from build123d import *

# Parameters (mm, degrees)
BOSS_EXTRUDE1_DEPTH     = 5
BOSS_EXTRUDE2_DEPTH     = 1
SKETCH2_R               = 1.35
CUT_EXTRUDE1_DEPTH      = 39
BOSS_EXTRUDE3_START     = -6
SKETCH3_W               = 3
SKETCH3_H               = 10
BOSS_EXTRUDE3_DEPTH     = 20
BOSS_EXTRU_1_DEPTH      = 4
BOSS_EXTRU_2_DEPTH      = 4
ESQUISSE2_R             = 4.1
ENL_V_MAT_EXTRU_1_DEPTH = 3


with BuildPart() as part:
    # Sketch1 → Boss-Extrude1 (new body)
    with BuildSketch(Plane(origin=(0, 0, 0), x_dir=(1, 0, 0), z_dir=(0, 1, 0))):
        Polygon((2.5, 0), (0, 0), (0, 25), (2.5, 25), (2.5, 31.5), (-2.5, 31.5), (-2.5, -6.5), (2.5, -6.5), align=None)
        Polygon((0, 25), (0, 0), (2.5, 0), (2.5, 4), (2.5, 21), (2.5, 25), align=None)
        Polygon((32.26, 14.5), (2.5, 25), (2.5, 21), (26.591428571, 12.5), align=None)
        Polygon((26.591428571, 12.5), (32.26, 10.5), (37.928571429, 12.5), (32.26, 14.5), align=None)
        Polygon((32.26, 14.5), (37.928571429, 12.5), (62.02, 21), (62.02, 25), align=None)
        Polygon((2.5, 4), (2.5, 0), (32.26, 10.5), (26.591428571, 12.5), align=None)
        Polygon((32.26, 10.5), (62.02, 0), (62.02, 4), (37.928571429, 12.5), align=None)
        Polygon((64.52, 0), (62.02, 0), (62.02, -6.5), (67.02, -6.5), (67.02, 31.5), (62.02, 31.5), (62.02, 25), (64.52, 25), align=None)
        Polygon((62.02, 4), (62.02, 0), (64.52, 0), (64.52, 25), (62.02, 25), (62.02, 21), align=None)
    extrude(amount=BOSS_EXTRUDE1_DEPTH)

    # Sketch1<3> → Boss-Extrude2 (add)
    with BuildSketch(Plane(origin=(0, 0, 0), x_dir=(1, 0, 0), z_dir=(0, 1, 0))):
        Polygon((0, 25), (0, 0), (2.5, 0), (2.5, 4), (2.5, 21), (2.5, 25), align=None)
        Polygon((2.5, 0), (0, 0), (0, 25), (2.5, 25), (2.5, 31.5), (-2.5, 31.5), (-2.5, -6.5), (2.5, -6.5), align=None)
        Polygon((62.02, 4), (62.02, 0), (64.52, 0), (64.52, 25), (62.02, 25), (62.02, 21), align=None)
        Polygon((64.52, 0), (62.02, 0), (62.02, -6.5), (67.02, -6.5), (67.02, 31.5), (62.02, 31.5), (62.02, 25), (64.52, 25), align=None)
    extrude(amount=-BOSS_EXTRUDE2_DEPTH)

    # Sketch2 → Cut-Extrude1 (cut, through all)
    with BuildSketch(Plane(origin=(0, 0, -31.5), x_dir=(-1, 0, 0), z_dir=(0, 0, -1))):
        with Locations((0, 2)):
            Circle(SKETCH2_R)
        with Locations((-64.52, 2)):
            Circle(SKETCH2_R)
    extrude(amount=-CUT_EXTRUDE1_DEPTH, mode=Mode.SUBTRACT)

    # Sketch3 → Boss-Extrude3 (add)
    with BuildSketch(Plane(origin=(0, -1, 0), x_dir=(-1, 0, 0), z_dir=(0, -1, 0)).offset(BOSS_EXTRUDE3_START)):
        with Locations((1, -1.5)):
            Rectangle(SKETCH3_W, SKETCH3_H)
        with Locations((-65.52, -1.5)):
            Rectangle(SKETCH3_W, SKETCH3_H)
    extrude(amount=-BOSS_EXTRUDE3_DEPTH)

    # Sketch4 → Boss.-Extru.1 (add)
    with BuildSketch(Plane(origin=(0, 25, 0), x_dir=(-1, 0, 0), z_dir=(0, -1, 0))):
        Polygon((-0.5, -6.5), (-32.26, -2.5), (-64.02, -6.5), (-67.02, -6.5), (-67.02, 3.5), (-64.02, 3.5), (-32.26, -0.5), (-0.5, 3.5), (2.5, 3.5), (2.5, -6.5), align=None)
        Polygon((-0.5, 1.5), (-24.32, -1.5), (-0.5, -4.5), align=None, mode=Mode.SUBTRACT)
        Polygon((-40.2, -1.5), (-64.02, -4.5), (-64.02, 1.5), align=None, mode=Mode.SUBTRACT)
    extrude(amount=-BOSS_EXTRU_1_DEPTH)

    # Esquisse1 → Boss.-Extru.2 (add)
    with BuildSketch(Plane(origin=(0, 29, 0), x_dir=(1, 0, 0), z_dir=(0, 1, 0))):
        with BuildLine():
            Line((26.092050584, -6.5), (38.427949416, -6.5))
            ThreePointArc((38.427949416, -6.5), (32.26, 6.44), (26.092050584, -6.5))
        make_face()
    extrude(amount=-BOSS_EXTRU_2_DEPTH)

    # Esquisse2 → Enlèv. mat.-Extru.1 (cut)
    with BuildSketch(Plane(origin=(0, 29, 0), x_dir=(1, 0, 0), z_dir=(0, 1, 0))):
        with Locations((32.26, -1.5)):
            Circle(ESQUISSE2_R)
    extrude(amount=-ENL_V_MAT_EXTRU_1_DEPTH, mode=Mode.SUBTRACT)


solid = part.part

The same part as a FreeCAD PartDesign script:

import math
import FreeCAD as App
import Part
import Sketcher
from FreeCAD import Vector

doc = App.newDocument("Part")
body = doc.addObject("PartDesign::Body", "Body")

# Sketch on XZ plane
sketch1 = doc.addObject("Sketcher::SketchObject", "Sketch")
body.addObject(sketch1)
sketch1.AttachmentSupport = (doc.XZ_Plane, [""])
sketch1.MapMode = "FlatFace"
sketch1.addGeometry([
    Part.LineSegment(Vector(2.5, -31.5, 0), Vector(-2.5, -31.5, 0)),  # 0
    Part.LineSegment(Vector(-2.5, -31.5, 0), Vector(-2.5, 6.5, 0)),  # 1
    Part.LineSegment(Vector(-2.5, 6.5, 0), Vector(2.5, 6.5, 0)),  # 2
    Part.LineSegment(Vector(2.5, 6.5, 0), Vector(2.5, 0, 0)),  # 3
    Part.LineSegment(Vector(2.5, 0, 0), Vector(32.3, -10.5, 0)),  # 4
    Part.LineSegment(Vector(32.3, -10.5, 0), Vector(62, 0, 0)),  # 5
    Part.LineSegment(Vector(62, 0, 0), Vector(62, 6.5, 0)),  # 6
    Part.LineSegment(Vector(62, 6.5, 0), Vector(67, 6.5, 0)),  # 7
    Part.LineSegment(Vector(67, 6.5, 0), Vector(67, -31.5, 0)),  # 8
    Part.LineSegment(Vector(67, -31.5, 0), Vector(62, -31.5, 0)),  # 9
    Part.LineSegment(Vector(62, -31.5, 0), Vector(62, -25, 0)),  # 10
    Part.LineSegment(Vector(62, -25, 0), Vector(32.3, -14.5, 0)),  # 11
    Part.LineSegment(Vector(32.3, -14.5, 0), Vector(2.5, -25, 0)),  # 12
    Part.LineSegment(Vector(2.5, -25, 0), Vector(2.5, -31.5, 0)),  # 13
    Part.LineSegment(Vector(62, -4, 0), Vector(37.9, -12.5, 0)),  # 14
    Part.LineSegment(Vector(37.9, -12.5, 0), Vector(62, -21, 0)),  # 15
    Part.LineSegment(Vector(62, -21, 0), Vector(62, -4, 0)),  # 16
    Part.LineSegment(Vector(2.5, -4, 0), Vector(2.5, -21, 0)),  # 17
    Part.LineSegment(Vector(2.5, -21, 0), Vector(26.6, -12.5, 0)),  # 18
    Part.LineSegment(Vector(26.6, -12.5, 0), Vector(2.5, -4, 0)),  # 19
], False)
sketch1.addConstraint([
    Sketcher.Constraint("Coincident", 0, 2, 1, 1),
    Sketcher.Constraint("Coincident", 1, 2, 2, 1),
    Sketcher.Constraint("Coincident", 2, 2, 3, 1),
    Sketcher.Constraint("Coincident", 3, 2, 4, 1),
    Sketcher.Constraint("Coincident", 4, 2, 5, 1),
    Sketcher.Constraint("Coincident", 5, 2, 6, 1),
    Sketcher.Constraint("Coincident", 6, 2, 7, 1),
    Sketcher.Constraint("Coincident", 7, 2, 8, 1),
    Sketcher.Constraint("Coincident", 8, 2, 9, 1),
    Sketcher.Constraint("Coincident", 9, 2, 10, 1),
    Sketcher.Constraint("Coincident", 10, 2, 11, 1),
    Sketcher.Constraint("Coincident", 11, 2, 12, 1),
    Sketcher.Constraint("Coincident", 12, 2, 13, 1),
    Sketcher.Constraint("Coincident", 13, 2, 0, 1),
    Sketcher.Constraint("Coincident", 14, 2, 15, 1),
    Sketcher.Constraint("Coincident", 15, 2, 16, 1),
    Sketcher.Constraint("Coincident", 16, 2, 14, 1),
    Sketcher.Constraint("Coincident", 17, 2, 18, 1),
    Sketcher.Constraint("Coincident", 18, 2, 19, 1),
    Sketcher.Constraint("Coincident", 19, 2, 17, 1),
    Sketcher.Constraint("Horizontal", 0),
    Sketcher.Constraint("Vertical", 1),
    Sketcher.Constraint("Horizontal", 2),
    Sketcher.Constraint("Vertical", 3),
    Sketcher.Constraint("Vertical", 6),
    Sketcher.Constraint("Horizontal", 7),
    Sketcher.Constraint("Vertical", 8),
    Sketcher.Constraint("Horizontal", 9),
    Sketcher.Constraint("Vertical", 10),
    Sketcher.Constraint("Vertical", 13),
    Sketcher.Constraint("Vertical", 16),
    Sketcher.Constraint("Vertical", 17),
    Sketcher.Constraint("PointOnObject", 3, 2, -1),
    Sketcher.Constraint("PointOnObject", 5, 2, -1),
    Sketcher.Constraint("Parallel", 4, 11),
    Sketcher.Constraint("Parallel", 5, 12),
    Sketcher.Constraint("Parallel", 12, 14),
    Sketcher.Constraint("Parallel", 11, 15),
    Sketcher.Constraint("Parallel", 14, 18),
    Sketcher.Constraint("Parallel", 15, 19),
    Sketcher.Constraint("Horizontal", 2, 2, 6, 2),
    Sketcher.Constraint("Horizontal", 0, 2, 8, 2),
    Sketcher.Constraint("Horizontal", 10, 2, 12, 2),
    Sketcher.Constraint("Horizontal", 15, 2, 17, 2),
    Sketcher.Constraint("Horizontal", 14, 2, 18, 2),
    Sketcher.Constraint("Horizontal", 16, 2, 19, 2),
    Sketcher.Constraint("Vertical", 6, 2, 9, 2),
    Sketcher.Constraint("Vertical", 4, 2, 11, 2),
    Sketcher.Constraint("Vertical", 10, 2, 15, 2),
    Sketcher.Constraint("Vertical", 13, 2, 17, 2),
    Sketcher.Constraint("Equal", 2, 7),
    Sketcher.Constraint("Equal", 6, 10),
    Sketcher.Constraint("DistanceX", 0, 2, 0, 1, 5.0),
    Sketcher.Constraint("DistanceY", 1, 1, 1, 2, 38.0),
    Sketcher.Constraint("DistanceY", 16, 1, 16, 2, 17.0),
    Sketcher.Constraint("DistanceY", 3, 2, 3, 1, 6.5),
    Sketcher.Constraint("DistanceY", 15, 2, -1, 1, 21.0),
    Sketcher.Constraint("DistanceY", 4, 2, 2, 2, 17.0),
    Sketcher.Constraint("DistanceX", 0, 2, -1, 1, 2.5),
    Sketcher.Constraint("DistanceX", -1, 1, 4, 2, 32.26),
])
pad1 = doc.addObject("PartDesign::Pad", "Pad")
body.addObject(pad1)
pad1.Profile = sketch1
pad1.Length = 5
pad1.Reversed = True

# Sketch on XZ plane
sketch2 = doc.addObject("Sketcher::SketchObject", "Sketch001")
body.addObject(sketch2)
sketch2.AttachmentSupport = (doc.XZ_Plane, [""])
sketch2.MapMode = "FlatFace"
sketch2.addGeometry([
    Part.LineSegment(Vector(2.5, -31.5, 0), Vector(-2.5, -31.5, 0)),  # 0
    Part.LineSegment(Vector(-2.5, -31.5, 0), Vector(-2.5, 6.5, 0)),  # 1
    Part.LineSegment(Vector(-2.5, 6.5, 0), Vector(2.5, 6.5, 0)),  # 2
    Part.LineSegment(Vector(2.5, 6.5, 0), Vector(2.5, -31.5, 0)),  # 3
    Part.LineSegment(Vector(62, 6.5, 0), Vector(67, 6.5, 0)),  # 4
    Part.LineSegment(Vector(67, 6.5, 0), Vector(67, -31.5, 0)),  # 5
    Part.LineSegment(Vector(67, -31.5, 0), Vector(62, -31.5, 0)),  # 6
    Part.LineSegment(Vector(62, -31.5, 0), Vector(62, 6.5, 0)),  # 7
], False)
sketch2.addConstraint([
    Sketcher.Constraint("Coincident", 0, 2, 1, 1),
    Sketcher.Constraint("Coincident", 1, 2, 2, 1),
    Sketcher.Constraint("Coincident", 2, 2, 3, 1),
    Sketcher.Constraint("Coincident", 3, 2, 0, 1),
    Sketcher.Constraint("Coincident", 4, 2, 5, 1),
    Sketcher.Constraint("Coincident", 5, 2, 6, 1),
    Sketcher.Constraint("Coincident", 6, 2, 7, 1),
    Sketcher.Constraint("Coincident", 7, 2, 4, 1),
    Sketcher.Constraint("Horizontal", 0),
    Sketcher.Constraint("Vertical", 1),
    Sketcher.Constraint("Horizontal", 2),
    Sketcher.Constraint("Vertical", 3),
    Sketcher.Constraint("Horizontal", 4),
    Sketcher.Constraint("Vertical", 5),
    Sketcher.Constraint("Horizontal", 6),
    Sketcher.Constraint("Vertical", 7),
    Sketcher.Constraint("Horizontal", 2, 2, 4, 2),
    Sketcher.Constraint("Horizontal", 3, 2, 5, 2),
    Sketcher.Constraint("Equal", 2, 4),
    Sketcher.Constraint("DistanceX", 0, 2, 0, 1, 5.0),
    Sketcher.Constraint("DistanceY", 1, 1, 1, 2, 38.0),
    Sketcher.Constraint("DistanceX", 0, 2, -1, 1, 2.5),
    Sketcher.Constraint("DistanceY", 0, 2, -1, 1, 31.5),
    Sketcher.Constraint("DistanceX", -1, 1, 4, 2, 67.02),
])
pad2 = doc.addObject("PartDesign::Pad", "Pad001")
body.addObject(pad2)
pad2.Profile = sketch2
pad2.Length = 1

# Sketch on XY plane
sketch3 = doc.addObject("Sketcher::SketchObject", "Sketch002")
body.addObject(sketch3)
sketch3.AttachmentSupport = (doc.XY_Plane, [""])
sketch3.MapMode = "FlatFace"
sketch3.AttachmentOffset = App.Placement(Vector(0, 0, -31.5), App.Rotation())
sketch3.addGeometry([
    Part.Circle(Vector(0, 2, 0), Vector(0, 0, 1), 1.4),
    Part.Circle(Vector(64.5, 2, 0), Vector(0, 0, 1), 1.4),
], False)
sketch3.addConstraint([
    Sketcher.Constraint("Equal", 0, 1),
    Sketcher.Constraint("PointOnObject", 0, 3, -2),
    Sketcher.Constraint("Horizontal", 0, 3, 1, 3),
    Sketcher.Constraint("Diameter", 0, 2.7),
    Sketcher.Constraint("DistanceY", -1, 1, 0, 3, 2.0),
    Sketcher.Constraint("DistanceX", -1, 1, 1, 3, 64.52),
])
pocket1 = doc.addObject("PartDesign::Pocket", "Pocket")
body.addObject(pocket1)
pocket1.Profile = sketch3
pocket1.Type = "ThroughAll"
pocket1.Reversed = True

# Sketch on XZ plane
sketch4 = doc.addObject("Sketcher::SketchObject", "Sketch003")
body.addObject(sketch4)
sketch4.AttachmentSupport = (doc.XZ_Plane, [""])
sketch4.MapMode = "FlatFace"
sketch4.AttachmentOffset = App.Placement(Vector(0, 0, -5), App.Rotation())
sketch4.addGeometry([
    Part.LineSegment(Vector(0.5, -3.5, 0), Vector(0.5, 6.5, 0)),  # 0
    Part.LineSegment(Vector(0.5, 6.5, 0), Vector(-2.5, 6.5, 0)),  # 1
    Part.LineSegment(Vector(-2.5, 6.5, 0), Vector(-2.5, -3.5, 0)),  # 2
    Part.LineSegment(Vector(-2.5, -3.5, 0), Vector(0.5, -3.5, 0)),  # 3
    Part.LineSegment(Vector(67, -3.5, 0), Vector(67, 6.5, 0)),  # 4
    Part.LineSegment(Vector(67, 6.5, 0), Vector(64, 6.5, 0)),  # 5
    Part.LineSegment(Vector(64, 6.5, 0), Vector(64, -3.5, 0)),  # 6
    Part.LineSegment(Vector(64, -3.5, 0), Vector(67, -3.5, 0)),  # 7
], False)
sketch4.addConstraint([
    Sketcher.Constraint("Coincident", 0, 2, 1, 1),
    Sketcher.Constraint("Coincident", 1, 2, 2, 1),
    Sketcher.Constraint("Coincident", 2, 2, 3, 1),
    Sketcher.Constraint("Coincident", 3, 2, 0, 1),
    Sketcher.Constraint("Coincident", 4, 2, 5, 1),
    Sketcher.Constraint("Coincident", 5, 2, 6, 1),
    Sketcher.Constraint("Coincident", 6, 2, 7, 1),
    Sketcher.Constraint("Coincident", 7, 2, 4, 1),
    Sketcher.Constraint("Vertical", 0),
    Sketcher.Constraint("Horizontal", 1),
    Sketcher.Constraint("Vertical", 2),
    Sketcher.Constraint("Horizontal", 3),
    Sketcher.Constraint("Vertical", 4),
    Sketcher.Constraint("Horizontal", 5),
    Sketcher.Constraint("Vertical", 6),
    Sketcher.Constraint("Horizontal", 7),
    Sketcher.Constraint("Horizontal", 1, 2, 4, 2),
    Sketcher.Constraint("Horizontal", 3, 2, 6, 2),
    Sketcher.Constraint("Equal", 3, 5),
    Sketcher.Constraint("DistanceX", 1, 2, 1, 1, 3.0),
    Sketcher.Constraint("DistanceY", 0, 1, 0, 2, 10.0),
    Sketcher.Constraint("DistanceX", -1, 1, 0, 2, 0.5),
    Sketcher.Constraint("DistanceY", -1, 1, 0, 2, 6.5),
    Sketcher.Constraint("DistanceX", -1, 1, 4, 2, 67.02),
])
pad3 = doc.addObject("PartDesign::Pad", "Pad002")
body.addObject(pad3)
pad3.Profile = sketch4
pad3.Length = 20
pad3.Reversed = True

# Sketch on XZ plane
sketch5 = doc.addObject("Sketcher::SketchObject", "Sketch004")
body.addObject(sketch5)
sketch5.AttachmentSupport = (doc.XZ_Plane, [""])
sketch5.MapMode = "FlatFace"
sketch5.AttachmentOffset = App.Placement(Vector(0, 0, -25), App.Rotation())
sketch5.addGeometry([
    Part.LineSegment(Vector(32.3, 2.5, 0), Vector(0.5, 6.5, 0)),  # 0
    Part.LineSegment(Vector(0.5, 6.5, 0), Vector(-2.5, 6.5, 0)),  # 1
    Part.LineSegment(Vector(-2.5, 6.5, 0), Vector(-2.5, -3.5, 0)),  # 2
    Part.LineSegment(Vector(-2.5, -3.5, 0), Vector(0.5, -3.5, 0)),  # 3
    Part.LineSegment(Vector(0.5, -3.5, 0), Vector(32.3, 0.5, 0)),  # 4
    Part.LineSegment(Vector(32.3, 0.5, 0), Vector(64, -3.5, 0)),  # 5
    Part.LineSegment(Vector(64, -3.5, 0), Vector(67, -3.5, 0)),  # 6
    Part.LineSegment(Vector(67, -3.5, 0), Vector(67, 6.5, 0)),  # 7
    Part.LineSegment(Vector(67, 6.5, 0), Vector(64, 6.5, 0)),  # 8
    Part.LineSegment(Vector(64, 6.5, 0), Vector(32.3, 2.5, 0)),  # 9
    Part.LineSegment(Vector(0.5, -1.5, 0), Vector(0.5, 4.5, 0)),  # 10
    Part.LineSegment(Vector(0.5, 4.5, 0), Vector(24.3, 1.5, 0)),  # 11
    Part.LineSegment(Vector(24.3, 1.5, 0), Vector(0.5, -1.5, 0)),  # 12
    Part.LineSegment(Vector(40.2, 1.5, 0), Vector(64, 4.5, 0)),  # 13
    Part.LineSegment(Vector(64, 4.5, 0), Vector(64, -1.5, 0)),  # 14
    Part.LineSegment(Vector(64, -1.5, 0), Vector(40.2, 1.5, 0)),  # 15
], False)
sketch5.addConstraint([
    Sketcher.Constraint("Coincident", 0, 2, 1, 1),
    Sketcher.Constraint("Coincident", 1, 2, 2, 1),
    Sketcher.Constraint("Coincident", 2, 2, 3, 1),
    Sketcher.Constraint("Coincident", 3, 2, 4, 1),
    Sketcher.Constraint("Coincident", 4, 2, 5, 1),
    Sketcher.Constraint("Coincident", 5, 2, 6, 1),
    Sketcher.Constraint("Coincident", 6, 2, 7, 1),
    Sketcher.Constraint("Coincident", 7, 2, 8, 1),
    Sketcher.Constraint("Coincident", 8, 2, 9, 1),
    Sketcher.Constraint("Coincident", 9, 2, 0, 1),
    Sketcher.Constraint("Coincident", 10, 2, 11, 1),
    Sketcher.Constraint("Coincident", 11, 2, 12, 1),
    Sketcher.Constraint("Coincident", 12, 2, 10, 1),
    Sketcher.Constraint("Coincident", 13, 2, 14, 1),
    Sketcher.Constraint("Coincident", 14, 2, 15, 1),
    Sketcher.Constraint("Coincident", 15, 2, 13, 1),
    Sketcher.Constraint("Horizontal", 1),
    Sketcher.Constraint("Vertical", 2),
    Sketcher.Constraint("Horizontal", 3),
    Sketcher.Constraint("Horizontal", 6),
    Sketcher.Constraint("Vertical", 7),
    Sketcher.Constraint("Horizontal", 8),
    Sketcher.Constraint("Vertical", 10),
    Sketcher.Constraint("Vertical", 14),
    Sketcher.Constraint("Parallel", 0, 5),
    Sketcher.Constraint("Parallel", 4, 9),
    Sketcher.Constraint("Parallel", 5, 11),
    Sketcher.Constraint("Parallel", 9, 12),
    Sketcher.Constraint("Parallel", 12, 13),
    Sketcher.Constraint("Parallel", 11, 15),
    Sketcher.Constraint("Horizontal", 3, 2, 5, 2),
    Sketcher.Constraint("Horizontal", 1, 2, 7, 2),
    Sketcher.Constraint("Horizontal", 10, 2, 13, 2),
    Sketcher.Constraint("Horizontal", 12, 2, 14, 2),
    Sketcher.Constraint("Horizontal", 11, 2, 15, 2),
    Sketcher.Constraint("Vertical", 0, 2, 3, 2),
    Sketcher.Constraint("Vertical", 5, 2, 8, 2),
    Sketcher.Constraint("Vertical", 3, 2, 10, 2),
    Sketcher.Constraint("Vertical", 8, 2, 13, 2),
    Sketcher.Constraint("Equal", 3, 6),
    Sketcher.Constraint("DistanceX", 1, 2, 1, 1, 3.0),
    Sketcher.Constraint("DistanceY", 2, 2, 2, 1, 10.0),
    Sketcher.Constraint("DistanceY", 10, 1, 10, 2, 6.0),
    Sketcher.Constraint("DistanceY", 3, 2, 4, 2, 4.0),
    Sketcher.Constraint("DistanceY", 10, 2, 0, 2, 2.0),
    Sketcher.Constraint("DistanceX", -1, 1, 0, 2, 0.5),
    Sketcher.Constraint("DistanceY", -1, 1, 0, 2, 6.5),
    Sketcher.Constraint("DistanceX", -1, 1, 15, 2, 40.2),
])
pad4 = doc.addObject("PartDesign::Pad", "Pad003")
body.addObject(pad4)
pad4.Profile = sketch5
pad4.Length = 4
pad4.Reversed = True

# Sketch on XZ plane
sketch6 = doc.addObject("Sketcher::SketchObject", "Sketch005")
body.addObject(sketch6)
sketch6.AttachmentSupport = (doc.XZ_Plane, [""])
sketch6.MapMode = "FlatFace"
sketch6.AttachmentOffset = App.Placement(Vector(0, 0, -29), App.Rotation())
sketch6.addGeometry([
    Part.LineSegment(Vector(26, 6, 0), Vector(38, 6, 0)),
    Part.ArcOfCircle(Part.Circle(Vector(32, 2, 0), Vector(0, 0, 1), 8), math.radians(141), math.radians(399)),
], False)
sketch6.addConstraint([
    Sketcher.Constraint("Coincident", 0, 1, 1, 1),
    Sketcher.Constraint("Coincident", 1, 2, 0, 2),
    Sketcher.Constraint("Horizontal", 0),
    Sketcher.Constraint("Radius", 1, 7.94),
    Sketcher.Constraint("DistanceY", 1, 3, 0, 1, 5.0),
    Sketcher.Constraint("DistanceY", -1, 1, 1, 3, 1.5),
    Sketcher.Constraint("DistanceX", -1, 1, 1, 3, 32.26),
])
pad5 = doc.addObject("PartDesign::Pad", "Pad004")
body.addObject(pad5)
pad5.Profile = sketch6
pad5.Length = 4

# Sketch on XZ plane
sketch7 = doc.addObject("Sketcher::SketchObject", "Sketch006")
body.addObject(sketch7)
sketch7.AttachmentSupport = (doc.XZ_Plane, [""])
sketch7.MapMode = "FlatFace"
sketch7.AttachmentOffset = App.Placement(Vector(0, 0, -29), App.Rotation())
sketch7.addGeometry(Part.Circle(Vector(32.3, 1.5, 0), Vector(0, 0, 1), 4.1), False)
sketch7.addConstraint([
    Sketcher.Constraint("Diameter", 0, 8.2),
    Sketcher.Constraint("DistanceY", -1, 1, 0, 3, 1.5),
    Sketcher.Constraint("DistanceX", -1, 1, 0, 3, 32.26),
])
pocket2 = doc.addObject("PartDesign::Pocket", "Pocket001")
body.addObject(pocket2)
pocket2.Profile = sketch7
pocket2.Length = 3
pocket2.Reversed = True

doc.recompute()
